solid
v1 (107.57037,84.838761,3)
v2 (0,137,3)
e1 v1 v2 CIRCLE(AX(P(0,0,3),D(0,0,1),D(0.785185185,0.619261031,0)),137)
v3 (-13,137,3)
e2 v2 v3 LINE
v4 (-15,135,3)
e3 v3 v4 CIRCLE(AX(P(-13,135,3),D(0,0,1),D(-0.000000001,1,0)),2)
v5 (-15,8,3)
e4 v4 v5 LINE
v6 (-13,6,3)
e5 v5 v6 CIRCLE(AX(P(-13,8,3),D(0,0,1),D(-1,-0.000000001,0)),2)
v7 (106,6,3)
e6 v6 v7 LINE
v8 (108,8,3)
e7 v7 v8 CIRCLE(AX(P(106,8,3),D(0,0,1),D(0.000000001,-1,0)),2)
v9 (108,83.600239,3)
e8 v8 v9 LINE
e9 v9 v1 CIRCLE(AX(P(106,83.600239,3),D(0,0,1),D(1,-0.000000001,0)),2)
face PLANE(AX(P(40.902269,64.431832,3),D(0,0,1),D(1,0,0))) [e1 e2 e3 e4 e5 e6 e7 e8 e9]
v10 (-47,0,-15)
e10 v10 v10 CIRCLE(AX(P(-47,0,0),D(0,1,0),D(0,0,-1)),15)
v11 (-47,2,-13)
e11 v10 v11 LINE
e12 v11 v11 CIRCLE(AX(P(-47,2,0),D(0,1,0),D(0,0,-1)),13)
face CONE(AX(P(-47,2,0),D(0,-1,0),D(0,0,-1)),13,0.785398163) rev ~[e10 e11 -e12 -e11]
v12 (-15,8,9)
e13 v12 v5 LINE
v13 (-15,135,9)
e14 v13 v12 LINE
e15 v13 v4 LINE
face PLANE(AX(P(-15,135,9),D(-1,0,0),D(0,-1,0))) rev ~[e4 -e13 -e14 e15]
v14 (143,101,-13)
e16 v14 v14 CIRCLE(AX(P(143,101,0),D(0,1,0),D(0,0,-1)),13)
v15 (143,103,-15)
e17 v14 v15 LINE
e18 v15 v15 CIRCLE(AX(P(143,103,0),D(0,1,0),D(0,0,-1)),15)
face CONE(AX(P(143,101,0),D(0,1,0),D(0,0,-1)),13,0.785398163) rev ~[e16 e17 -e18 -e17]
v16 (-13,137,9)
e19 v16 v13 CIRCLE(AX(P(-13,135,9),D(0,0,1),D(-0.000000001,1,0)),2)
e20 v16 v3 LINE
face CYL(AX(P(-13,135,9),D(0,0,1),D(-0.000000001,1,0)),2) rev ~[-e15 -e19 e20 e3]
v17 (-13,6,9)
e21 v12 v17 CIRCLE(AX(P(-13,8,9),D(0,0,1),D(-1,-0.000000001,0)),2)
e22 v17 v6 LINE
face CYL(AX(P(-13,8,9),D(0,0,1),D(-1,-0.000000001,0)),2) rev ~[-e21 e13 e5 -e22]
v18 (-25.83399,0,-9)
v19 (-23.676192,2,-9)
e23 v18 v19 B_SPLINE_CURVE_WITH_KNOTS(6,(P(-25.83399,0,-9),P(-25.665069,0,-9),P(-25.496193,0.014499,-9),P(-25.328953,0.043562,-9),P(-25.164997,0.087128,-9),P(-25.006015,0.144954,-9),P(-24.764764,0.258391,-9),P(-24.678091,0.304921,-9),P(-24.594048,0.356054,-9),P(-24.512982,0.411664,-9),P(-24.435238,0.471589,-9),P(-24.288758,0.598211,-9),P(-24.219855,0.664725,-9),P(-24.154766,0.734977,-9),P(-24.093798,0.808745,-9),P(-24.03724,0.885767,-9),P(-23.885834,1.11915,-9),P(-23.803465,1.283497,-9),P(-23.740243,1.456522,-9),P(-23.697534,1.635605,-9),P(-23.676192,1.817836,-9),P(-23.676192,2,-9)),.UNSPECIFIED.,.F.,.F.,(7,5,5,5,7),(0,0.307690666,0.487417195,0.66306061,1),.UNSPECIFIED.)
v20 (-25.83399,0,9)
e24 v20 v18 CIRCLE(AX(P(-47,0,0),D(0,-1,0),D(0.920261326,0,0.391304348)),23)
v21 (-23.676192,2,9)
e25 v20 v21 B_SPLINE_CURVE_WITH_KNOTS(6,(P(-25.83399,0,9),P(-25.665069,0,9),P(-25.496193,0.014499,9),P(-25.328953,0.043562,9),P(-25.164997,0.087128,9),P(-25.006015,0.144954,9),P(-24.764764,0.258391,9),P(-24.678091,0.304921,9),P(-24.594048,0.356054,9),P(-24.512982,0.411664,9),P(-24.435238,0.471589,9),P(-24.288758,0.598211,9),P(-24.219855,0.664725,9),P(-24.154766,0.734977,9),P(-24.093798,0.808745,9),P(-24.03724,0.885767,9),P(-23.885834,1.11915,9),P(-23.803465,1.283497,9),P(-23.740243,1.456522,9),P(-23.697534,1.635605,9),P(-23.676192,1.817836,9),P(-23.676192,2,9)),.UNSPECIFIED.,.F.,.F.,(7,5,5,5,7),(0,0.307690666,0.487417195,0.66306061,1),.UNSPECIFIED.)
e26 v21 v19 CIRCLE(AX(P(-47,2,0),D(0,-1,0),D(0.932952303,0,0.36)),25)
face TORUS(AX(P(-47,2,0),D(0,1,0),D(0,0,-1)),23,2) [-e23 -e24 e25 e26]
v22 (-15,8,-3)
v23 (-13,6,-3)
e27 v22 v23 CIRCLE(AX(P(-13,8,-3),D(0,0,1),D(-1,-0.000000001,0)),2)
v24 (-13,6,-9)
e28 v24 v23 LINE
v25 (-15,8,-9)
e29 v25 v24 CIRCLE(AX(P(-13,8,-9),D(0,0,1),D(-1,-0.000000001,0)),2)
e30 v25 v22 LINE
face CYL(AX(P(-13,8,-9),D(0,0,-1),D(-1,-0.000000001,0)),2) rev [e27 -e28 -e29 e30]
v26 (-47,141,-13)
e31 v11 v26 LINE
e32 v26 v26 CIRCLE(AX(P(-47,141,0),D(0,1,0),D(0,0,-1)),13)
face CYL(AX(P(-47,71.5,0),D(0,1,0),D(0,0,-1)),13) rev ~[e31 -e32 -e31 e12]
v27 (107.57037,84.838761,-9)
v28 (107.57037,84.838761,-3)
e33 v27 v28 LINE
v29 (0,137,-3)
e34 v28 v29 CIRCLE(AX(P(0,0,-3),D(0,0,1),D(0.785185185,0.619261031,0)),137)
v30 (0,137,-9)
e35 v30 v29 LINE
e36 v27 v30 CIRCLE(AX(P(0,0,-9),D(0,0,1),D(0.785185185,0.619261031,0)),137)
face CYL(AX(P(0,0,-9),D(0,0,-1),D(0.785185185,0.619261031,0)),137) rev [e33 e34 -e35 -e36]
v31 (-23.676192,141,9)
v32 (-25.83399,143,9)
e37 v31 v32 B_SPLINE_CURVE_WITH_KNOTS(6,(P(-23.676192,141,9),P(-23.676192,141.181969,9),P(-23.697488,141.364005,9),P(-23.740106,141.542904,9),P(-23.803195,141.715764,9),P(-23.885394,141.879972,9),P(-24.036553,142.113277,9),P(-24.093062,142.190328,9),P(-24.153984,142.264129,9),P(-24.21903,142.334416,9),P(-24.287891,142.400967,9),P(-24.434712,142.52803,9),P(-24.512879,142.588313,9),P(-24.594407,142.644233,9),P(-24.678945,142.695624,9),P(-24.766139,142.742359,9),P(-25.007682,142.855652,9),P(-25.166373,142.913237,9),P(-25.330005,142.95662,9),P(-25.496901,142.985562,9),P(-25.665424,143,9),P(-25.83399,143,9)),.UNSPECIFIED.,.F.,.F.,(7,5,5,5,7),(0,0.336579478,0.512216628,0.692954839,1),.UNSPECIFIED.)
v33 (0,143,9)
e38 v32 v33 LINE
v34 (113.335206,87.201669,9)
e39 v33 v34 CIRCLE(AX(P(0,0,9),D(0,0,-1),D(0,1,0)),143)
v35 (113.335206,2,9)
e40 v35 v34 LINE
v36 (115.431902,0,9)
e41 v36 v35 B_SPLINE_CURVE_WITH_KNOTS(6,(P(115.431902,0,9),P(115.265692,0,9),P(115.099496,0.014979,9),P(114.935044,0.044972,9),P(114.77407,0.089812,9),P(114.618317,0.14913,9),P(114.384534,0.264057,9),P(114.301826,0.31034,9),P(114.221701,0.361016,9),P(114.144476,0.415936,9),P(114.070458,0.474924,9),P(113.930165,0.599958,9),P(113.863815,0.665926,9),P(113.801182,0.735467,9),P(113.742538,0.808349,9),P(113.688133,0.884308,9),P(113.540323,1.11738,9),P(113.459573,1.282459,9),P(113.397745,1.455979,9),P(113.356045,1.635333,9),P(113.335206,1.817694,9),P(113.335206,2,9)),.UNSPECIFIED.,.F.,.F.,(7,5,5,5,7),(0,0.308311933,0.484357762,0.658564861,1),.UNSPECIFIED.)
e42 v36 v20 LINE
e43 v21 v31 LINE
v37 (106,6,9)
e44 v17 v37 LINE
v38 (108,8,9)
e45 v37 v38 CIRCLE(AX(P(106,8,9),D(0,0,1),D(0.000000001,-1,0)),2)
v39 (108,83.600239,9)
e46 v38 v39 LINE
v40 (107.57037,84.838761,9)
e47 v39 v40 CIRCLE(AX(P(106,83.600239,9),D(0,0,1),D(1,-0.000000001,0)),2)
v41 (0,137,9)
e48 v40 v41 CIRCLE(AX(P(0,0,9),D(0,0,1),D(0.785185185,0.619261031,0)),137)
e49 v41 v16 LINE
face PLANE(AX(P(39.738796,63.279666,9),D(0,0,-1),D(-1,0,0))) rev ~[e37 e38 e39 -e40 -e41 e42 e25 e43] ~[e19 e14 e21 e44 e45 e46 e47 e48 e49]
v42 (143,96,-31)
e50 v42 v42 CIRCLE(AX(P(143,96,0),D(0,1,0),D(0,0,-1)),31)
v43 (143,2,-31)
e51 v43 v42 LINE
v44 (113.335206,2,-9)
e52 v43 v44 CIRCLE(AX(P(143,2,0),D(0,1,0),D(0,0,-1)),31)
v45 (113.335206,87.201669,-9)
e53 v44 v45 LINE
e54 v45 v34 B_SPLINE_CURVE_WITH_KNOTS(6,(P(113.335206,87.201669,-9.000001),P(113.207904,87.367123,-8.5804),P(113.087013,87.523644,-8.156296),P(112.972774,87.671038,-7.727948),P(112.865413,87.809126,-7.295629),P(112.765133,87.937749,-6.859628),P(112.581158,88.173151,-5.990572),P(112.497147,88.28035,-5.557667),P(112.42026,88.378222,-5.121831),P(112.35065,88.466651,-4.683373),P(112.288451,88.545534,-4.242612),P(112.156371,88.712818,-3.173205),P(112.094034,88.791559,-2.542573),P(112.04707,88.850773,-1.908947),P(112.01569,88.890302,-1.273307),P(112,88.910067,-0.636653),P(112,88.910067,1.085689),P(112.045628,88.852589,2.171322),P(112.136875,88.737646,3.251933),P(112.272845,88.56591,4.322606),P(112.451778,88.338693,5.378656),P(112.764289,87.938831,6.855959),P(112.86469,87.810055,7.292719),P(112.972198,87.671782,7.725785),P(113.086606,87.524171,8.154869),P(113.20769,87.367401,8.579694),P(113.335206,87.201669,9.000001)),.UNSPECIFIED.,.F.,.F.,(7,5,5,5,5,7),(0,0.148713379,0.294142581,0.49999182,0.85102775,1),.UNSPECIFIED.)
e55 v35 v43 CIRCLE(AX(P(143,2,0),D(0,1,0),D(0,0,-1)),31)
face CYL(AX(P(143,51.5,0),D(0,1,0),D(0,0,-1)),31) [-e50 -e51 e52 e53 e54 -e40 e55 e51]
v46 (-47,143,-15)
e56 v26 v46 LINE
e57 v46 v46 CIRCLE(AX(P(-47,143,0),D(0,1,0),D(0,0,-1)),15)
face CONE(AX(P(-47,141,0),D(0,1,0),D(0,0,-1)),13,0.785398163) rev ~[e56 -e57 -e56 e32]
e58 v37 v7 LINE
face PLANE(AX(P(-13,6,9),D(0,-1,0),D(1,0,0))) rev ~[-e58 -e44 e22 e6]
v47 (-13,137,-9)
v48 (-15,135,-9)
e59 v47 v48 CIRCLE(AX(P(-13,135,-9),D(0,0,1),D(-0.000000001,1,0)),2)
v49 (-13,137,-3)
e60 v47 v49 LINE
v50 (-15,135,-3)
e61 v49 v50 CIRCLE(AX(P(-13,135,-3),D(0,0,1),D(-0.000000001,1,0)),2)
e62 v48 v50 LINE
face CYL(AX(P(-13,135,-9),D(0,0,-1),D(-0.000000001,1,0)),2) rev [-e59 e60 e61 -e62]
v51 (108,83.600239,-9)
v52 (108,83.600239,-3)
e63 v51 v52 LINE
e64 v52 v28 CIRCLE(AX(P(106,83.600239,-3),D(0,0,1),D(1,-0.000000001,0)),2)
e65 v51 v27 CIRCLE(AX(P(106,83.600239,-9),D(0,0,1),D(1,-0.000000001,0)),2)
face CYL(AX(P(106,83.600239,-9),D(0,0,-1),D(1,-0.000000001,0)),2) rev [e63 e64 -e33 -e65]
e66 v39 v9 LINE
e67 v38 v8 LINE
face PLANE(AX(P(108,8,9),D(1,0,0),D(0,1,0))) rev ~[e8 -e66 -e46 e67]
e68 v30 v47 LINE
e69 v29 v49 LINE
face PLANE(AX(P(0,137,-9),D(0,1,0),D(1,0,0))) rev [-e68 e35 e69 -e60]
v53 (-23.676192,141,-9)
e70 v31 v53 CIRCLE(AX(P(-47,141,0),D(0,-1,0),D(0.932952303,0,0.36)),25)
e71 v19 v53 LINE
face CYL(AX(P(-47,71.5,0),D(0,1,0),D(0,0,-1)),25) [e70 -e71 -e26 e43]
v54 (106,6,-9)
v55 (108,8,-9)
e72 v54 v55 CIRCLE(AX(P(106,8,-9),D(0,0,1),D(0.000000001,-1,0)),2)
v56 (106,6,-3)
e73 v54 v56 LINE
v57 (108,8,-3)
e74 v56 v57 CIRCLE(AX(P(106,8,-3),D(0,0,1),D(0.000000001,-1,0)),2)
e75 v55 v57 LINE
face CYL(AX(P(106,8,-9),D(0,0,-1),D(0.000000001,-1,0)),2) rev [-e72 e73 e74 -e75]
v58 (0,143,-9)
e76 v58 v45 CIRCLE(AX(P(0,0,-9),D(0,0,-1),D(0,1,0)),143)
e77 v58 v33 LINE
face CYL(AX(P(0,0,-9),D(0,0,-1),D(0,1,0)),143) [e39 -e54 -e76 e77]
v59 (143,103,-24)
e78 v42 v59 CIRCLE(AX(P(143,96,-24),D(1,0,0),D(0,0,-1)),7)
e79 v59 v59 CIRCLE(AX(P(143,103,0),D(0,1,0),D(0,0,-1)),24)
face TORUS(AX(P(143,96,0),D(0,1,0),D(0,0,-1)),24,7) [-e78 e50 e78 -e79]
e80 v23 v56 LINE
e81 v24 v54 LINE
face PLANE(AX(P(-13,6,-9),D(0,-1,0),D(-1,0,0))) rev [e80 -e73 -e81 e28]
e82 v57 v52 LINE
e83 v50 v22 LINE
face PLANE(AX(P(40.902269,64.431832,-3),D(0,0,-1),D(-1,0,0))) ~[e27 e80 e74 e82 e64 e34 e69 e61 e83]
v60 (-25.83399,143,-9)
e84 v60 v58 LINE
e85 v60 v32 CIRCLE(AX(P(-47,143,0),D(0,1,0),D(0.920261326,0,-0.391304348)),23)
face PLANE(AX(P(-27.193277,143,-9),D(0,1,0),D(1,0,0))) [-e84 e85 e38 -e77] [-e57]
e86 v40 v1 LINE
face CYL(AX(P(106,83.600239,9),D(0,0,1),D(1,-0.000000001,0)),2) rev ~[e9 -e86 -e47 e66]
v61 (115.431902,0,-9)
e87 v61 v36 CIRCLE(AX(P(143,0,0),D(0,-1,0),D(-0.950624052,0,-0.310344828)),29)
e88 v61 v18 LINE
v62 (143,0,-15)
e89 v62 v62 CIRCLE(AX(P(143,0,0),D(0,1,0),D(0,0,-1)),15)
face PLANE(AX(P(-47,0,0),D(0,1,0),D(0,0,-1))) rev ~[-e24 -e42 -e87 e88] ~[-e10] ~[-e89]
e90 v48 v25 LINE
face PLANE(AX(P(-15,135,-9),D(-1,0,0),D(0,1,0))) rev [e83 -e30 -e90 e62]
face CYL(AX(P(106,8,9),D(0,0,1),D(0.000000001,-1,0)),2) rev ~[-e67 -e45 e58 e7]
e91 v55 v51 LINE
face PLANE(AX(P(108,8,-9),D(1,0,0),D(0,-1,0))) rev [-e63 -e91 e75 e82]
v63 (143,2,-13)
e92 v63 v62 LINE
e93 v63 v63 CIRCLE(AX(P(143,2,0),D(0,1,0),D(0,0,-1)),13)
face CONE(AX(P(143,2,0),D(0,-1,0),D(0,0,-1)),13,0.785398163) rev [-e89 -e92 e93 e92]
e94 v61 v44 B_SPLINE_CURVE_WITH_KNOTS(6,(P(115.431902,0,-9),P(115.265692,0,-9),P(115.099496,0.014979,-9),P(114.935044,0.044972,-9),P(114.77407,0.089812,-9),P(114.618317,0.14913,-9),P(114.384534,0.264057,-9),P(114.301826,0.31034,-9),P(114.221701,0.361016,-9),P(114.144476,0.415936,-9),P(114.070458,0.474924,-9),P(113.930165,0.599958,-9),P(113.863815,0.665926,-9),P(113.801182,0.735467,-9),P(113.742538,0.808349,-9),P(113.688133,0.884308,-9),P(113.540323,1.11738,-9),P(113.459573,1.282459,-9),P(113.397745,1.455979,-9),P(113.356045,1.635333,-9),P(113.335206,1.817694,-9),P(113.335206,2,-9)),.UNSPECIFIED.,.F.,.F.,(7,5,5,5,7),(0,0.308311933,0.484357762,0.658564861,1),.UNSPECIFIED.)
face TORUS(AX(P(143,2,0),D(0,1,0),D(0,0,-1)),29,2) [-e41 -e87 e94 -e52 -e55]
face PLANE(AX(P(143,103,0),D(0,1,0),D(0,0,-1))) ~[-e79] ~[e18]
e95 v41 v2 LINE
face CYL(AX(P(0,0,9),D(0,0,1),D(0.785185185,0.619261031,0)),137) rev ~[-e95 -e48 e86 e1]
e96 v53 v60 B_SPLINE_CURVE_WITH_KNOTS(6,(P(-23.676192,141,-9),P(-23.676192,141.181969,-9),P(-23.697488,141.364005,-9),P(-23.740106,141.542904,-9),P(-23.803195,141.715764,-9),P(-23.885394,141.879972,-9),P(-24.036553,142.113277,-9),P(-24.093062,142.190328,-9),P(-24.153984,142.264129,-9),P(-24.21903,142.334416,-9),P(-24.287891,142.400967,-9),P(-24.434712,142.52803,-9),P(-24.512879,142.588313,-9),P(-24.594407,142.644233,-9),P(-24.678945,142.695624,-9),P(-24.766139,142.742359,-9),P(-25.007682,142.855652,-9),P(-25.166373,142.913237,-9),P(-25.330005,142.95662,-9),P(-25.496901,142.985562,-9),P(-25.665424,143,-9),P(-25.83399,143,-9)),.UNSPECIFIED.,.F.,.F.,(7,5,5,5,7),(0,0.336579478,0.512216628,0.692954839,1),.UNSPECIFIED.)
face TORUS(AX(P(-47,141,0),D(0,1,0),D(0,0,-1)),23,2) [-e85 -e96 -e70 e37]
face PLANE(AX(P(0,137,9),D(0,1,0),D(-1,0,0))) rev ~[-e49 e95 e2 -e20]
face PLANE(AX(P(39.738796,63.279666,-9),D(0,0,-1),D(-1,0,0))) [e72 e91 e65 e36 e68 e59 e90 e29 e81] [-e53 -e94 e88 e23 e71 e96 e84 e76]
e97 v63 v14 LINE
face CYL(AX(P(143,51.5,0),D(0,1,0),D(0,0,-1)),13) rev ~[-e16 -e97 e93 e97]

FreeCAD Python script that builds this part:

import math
import FreeCAD as App
import Part
import Sketcher


def edges_at(feature, points):
    """Names of the edges that pass closest to the given points."""
    edges = feature.Shape.Edges
    near = lambda p: min(range(len(edges)), key=lambda i: edges[i].distToShape(Part.Vertex(*p))[0])
    return sorted({f"Edge{near(p) + 1}" for p in points})


def add_polygon(sketch, points):
    """Adds a closed chain of lines whose ends are joined by coincident constraints."""
    first, n = sketch.GeometryCount, len(points)
    for a, b in zip(points, points[1:] + points[:1]):
        sketch.addGeometry(Part.LineSegment(App.Vector(*a, 0), App.Vector(*b, 0)), False)
    for i in range(n):
        sketch.addConstraint(Sketcher.Constraint("Coincident", first + i, 2, first + (i + 1) % n, 1))

doc = App.newDocument("Part")
body = doc.addObject("PartDesign::Body", "Body")

sketch1 = body.newObject("Sketcher::SketchObject", "Sketch")
sketch1.AttachmentSupport = (doc.getObject("XY_Plane"), [""])
sketch1.MapMode = "FlatFace"
add_polygon(sketch1, [(156, 103), (156, 0), (174, 0), (174, 103)])
sketch1.addGeometry(Part.LineSegment(App.Vector(143, 0, 0), App.Vector(143, 103, 0)), True)
sketch1.addConstraint([
    Sketcher.Constraint("Vertical", 0),
    Sketcher.Constraint("Horizontal", 1),
    Sketcher.Constraint("Vertical", 2),
    Sketcher.Constraint("Horizontal", 3),
    Sketcher.Constraint("Vertical", 4),
    Sketcher.Constraint("PointOnObject", 0, 2, -1),
    Sketcher.Constraint("PointOnObject", 4, 1, -1),
    Sketcher.Constraint("Horizontal", 3, 2, 4, 2),
    Sketcher.Constraint("DistanceX", 1, 1, 1, 2, 18.0),
    Sketcher.Constraint("DistanceY", 0, 2, 0, 1, 103.0),
    Sketcher.Constraint("DistanceX", -1, 1, 0, 2, 156.0),
    Sketcher.Constraint("DistanceX", -1, 1, 4, 1, 143.0),
])
revolution = body.newObject("PartDesign::Revolution", "Revolution")
revolution.Profile = sketch1
revolution.ReferenceAxis = (sketch1, ["Axis0"])
revolution.Angle = 360
doc.recompute()

chamfer = body.newObject("PartDesign::Chamfer", "Chamfer")
chamfer.Base = (revolution, edges_at(revolution, [(143, 103, 13), (143, 0, 13)]))
chamfer.Size = 2
doc.recompute()

fillet = body.newObject("PartDesign::Fillet", "Fillet")
fillet.Base = (chamfer, edges_at(chamfer, [(143, 0, 31)]))
fillet.Radius = 2
doc.recompute()

fillet2 = body.newObject("PartDesign::Fillet", "Fillet001")
fillet2.Base = (fillet, edges_at(fillet, [(143, 103, 31)]))
fillet2.Radius = 7
body2 = doc.addObject("PartDesign::Body", "Body001")

sketch2 = body2.newObject("Sketcher::SketchObject", "Sketch001")
sketch2.AttachmentSupport = (doc.getObject("XY_Plane001"), [""])
sketch2.MapMode = "FlatFace"
add_polygon(sketch2, [(-72, 143), (-72, 0), (-60, 0), (-60, 143)])
sketch2.addGeometry(Part.LineSegment(App.Vector(-47, 0, 0), App.Vector(-47, 143, 0)), True)
sketch2.addConstraint([
    Sketcher.Constraint("Vertical", 0),
    Sketcher.Constraint("Horizontal", 1),
    Sketcher.Constraint("Vertical", 2),
    Sketcher.Constraint("Horizontal", 3),
    Sketcher.Constraint("Vertical", 4),
    Sketcher.Constraint("PointOnObject", 0, 2, -1),
    Sketcher.Constraint("PointOnObject", 4, 1, -1),
    Sketcher.Constraint("Horizontal", 3, 2, 4, 2),
    Sketcher.Constraint("DistanceX", 1, 1, 1, 2, 12.0),
    Sketcher.Constraint("DistanceY", 0, 2, 0, 1, 143.0),
    Sketcher.Constraint("DistanceX", 0, 2, -1, 1, 72.0),
    Sketcher.Constraint("DistanceX", 4, 1, -1, 1, 47.0),
])
revolution2 = body2.newObject("PartDesign::Revolution", "Revolution001")
revolution2.Profile = sketch2
revolution2.ReferenceAxis = (sketch2, ["Axis0"])
revolution2.Angle = 360
doc.recompute()

chamfer2 = body2.newObject("PartDesign::Chamfer", "Chamfer001")
chamfer2.Base = (revolution2, edges_at(revolution2, [(-47, 143, 13), (-47, 0, 13)]))
chamfer2.Size = 2
doc.recompute()

fillet3 = body2.newObject("PartDesign::Fillet", "Fillet002")
fillet3.Base = (chamfer2, edges_at(chamfer2, [(-47, 143, 25), (-47, 0, 25)]))
fillet3.Radius = 2
body.AllowCompound = True
doc.recompute()

boolean = body.newObject("PartDesign::Boolean", "Boolean")
boolean.Type = "Fuse"
boolean.addObjects([body2])

sketch3 = body.newObject("Sketcher::SketchObject", "Sketch002")
sketch3.AttachmentSupport = (doc.getObject("XY_Plane"), [""])
sketch3.MapMode = "FlatFace"
sketch3.addGeometry([
    Part.LineSegment(App.Vector(-27, 143, 0), App.Vector(-27, 0, 0)),
    Part.LineSegment(App.Vector(-27, 0, 0), App.Vector(121, 0, 0)),
    Part.LineSegment(App.Vector(121, 0, 0), App.Vector(121, 76, 0)),
    Part.ArcOfCircle(Part.Circle(App.Vector(0, 0, 0), App.Vector(0, 0, 1), 143), math.radians(32), math.radians(90)),
    Part.LineSegment(App.Vector(0, 143, 0), App.Vector(-27, 143, 0)),
], False)
sketch3.addConstraint([
    Sketcher.Constraint("Coincident", 0, 2, 1, 1),
    Sketcher.Constraint("Coincident", 1, 2, 2, 1),
    Sketcher.Constraint("Coincident", 2, 2, 3, 1),
    Sketcher.Constraint("Tangent", 3, 2, 4, 1),
    Sketcher.Constraint("Coincident", 4, 2, 0, 1),
    Sketcher.Constraint("Vertical", 0),
    Sketcher.Constraint("Horizontal", 1),
    Sketcher.Constraint("Vertical", 2),
    Sketcher.Constraint("Horizontal", 4),
    Sketcher.Constraint("Coincident", 3, 3, -1, 1),
    Sketcher.Constraint("PointOnObject", 0, 2, -1),
    Sketcher.Constraint("Radius", 3, 143.0),
    Sketcher.Constraint("DistanceX", 1, 1, 1, 2, 148.512949),
    Sketcher.Constraint("DistanceY", 2, 1, 2, 2, 75.700311),
])
pad1 = body.newObject("PartDesign::Pad", "Pad")
pad1.Profile = sketch3
pad1.Type = "TwoLengths"
pad1.Length = 9
pad1.Length2 = 9

sketch4 = body.newObject("Sketcher::SketchObject", "Sketch003")
sketch4.AttachmentSupport = (doc.getObject("XY_Plane"), [""])
sketch4.MapMode = "FlatFace"
sketch4.AttachmentOffset = App.Placement(App.Vector(0, 0, 9), App.Rotation())
sketch4.addGeometry([
    Part.LineSegment(App.Vector(0, 137, 0), App.Vector(-13, 137, 0)),
    Part.ArcOfCircle(Part.Circle(App.Vector(-13, 135, 0), App.Vector(0, 0, 1), 2), math.radians(90), math.radians(180)),
    Part.LineSegment(App.Vector(-15, 135, 0), App.Vector(-15, 8, 0)),
    Part.ArcOfCircle(Part.Circle(App.Vector(-13, 8, 0), App.Vector(0, 0, 1), 2), math.radians(-180), math.radians(-90)),
    Part.LineSegment(App.Vector(-13, 6, 0), App.Vector(106, 6, 0)),
    Part.ArcOfCircle(Part.Circle(App.Vector(106, 8, 0), App.Vector(0, 0, 1), 2), math.radians(-90), math.radians(0)),
    Part.LineSegment(App.Vector(108, 8, 0), App.Vector(108, 83.6, 0)),
    Part.ArcOfCircle(Part.Circle(App.Vector(106, 83.6, 0), App.Vector(0, 0, 1), 2), math.radians(0), math.radians(38)),
    Part.ArcOfCircle(Part.Circle(App.Vector(0, 0, 0), App.Vector(0, 0, 1), 137), math.radians(38), math.radians(90)),
], False)
sketch4.addConstraint([
    Sketcher.Constraint("Tangent", 0, 2, 1, 1),
    Sketcher.Constraint("Tangent", 1, 2, 2, 1),
    Sketcher.Constraint("Tangent", 2, 2, 3, 1),
    Sketcher.Constraint("Tangent", 3, 2, 4, 1),
    Sketcher.Constraint("Tangent", 4, 2, 5, 1),
    Sketcher.Constraint("Tangent", 5, 2, 6, 1),
    Sketcher.Constraint("Tangent", 6, 2, 7, 1),
    Sketcher.Constraint("Tangent", 7, 2, 8, 1),
    Sketcher.Constraint("Tangent", 8, 2, 0, 1),
    Sketcher.Constraint("Horizontal", 0),
    Sketcher.Constraint("Vertical", 2),
    Sketcher.Constraint("Horizontal", 4),
    Sketcher.Constraint("Vertical", 6),
    Sketcher.Constraint("Coincident", 8, 3, -1, 1),
    Sketcher.Constraint("Equal", 1, 3),
    Sketcher.Constraint("Equal", 3, 5),
    Sketcher.Constraint("Equal", 5, 7),
    Sketcher.Constraint("Radius", 1, 2.0),
    Sketcher.Constraint("Radius", 8, 137.0),
    Sketcher.Constraint("DistanceX", 0, 2, 0, 1, 13.0),
    Sketcher.Constraint("DistanceX", 4, 1, 4, 2, 119.0),
    Sketcher.Constraint("DistanceY", 2, 2, 2, 1, 127.0),
])
pocket1 = body.newObject("PartDesign::Pocket", "Pocket")
pocket1.Profile = sketch4
pocket1.Length = 6
doc.recompute()

mirrored = body.newObject("PartDesign::Mirrored", "Mirrored")
mirrored.Originals = [pocket1]
mirrored.MirrorPlane = (doc.getObject("XY_Plane"), [""])
body.Tip = mirrored

doc.recompute()
